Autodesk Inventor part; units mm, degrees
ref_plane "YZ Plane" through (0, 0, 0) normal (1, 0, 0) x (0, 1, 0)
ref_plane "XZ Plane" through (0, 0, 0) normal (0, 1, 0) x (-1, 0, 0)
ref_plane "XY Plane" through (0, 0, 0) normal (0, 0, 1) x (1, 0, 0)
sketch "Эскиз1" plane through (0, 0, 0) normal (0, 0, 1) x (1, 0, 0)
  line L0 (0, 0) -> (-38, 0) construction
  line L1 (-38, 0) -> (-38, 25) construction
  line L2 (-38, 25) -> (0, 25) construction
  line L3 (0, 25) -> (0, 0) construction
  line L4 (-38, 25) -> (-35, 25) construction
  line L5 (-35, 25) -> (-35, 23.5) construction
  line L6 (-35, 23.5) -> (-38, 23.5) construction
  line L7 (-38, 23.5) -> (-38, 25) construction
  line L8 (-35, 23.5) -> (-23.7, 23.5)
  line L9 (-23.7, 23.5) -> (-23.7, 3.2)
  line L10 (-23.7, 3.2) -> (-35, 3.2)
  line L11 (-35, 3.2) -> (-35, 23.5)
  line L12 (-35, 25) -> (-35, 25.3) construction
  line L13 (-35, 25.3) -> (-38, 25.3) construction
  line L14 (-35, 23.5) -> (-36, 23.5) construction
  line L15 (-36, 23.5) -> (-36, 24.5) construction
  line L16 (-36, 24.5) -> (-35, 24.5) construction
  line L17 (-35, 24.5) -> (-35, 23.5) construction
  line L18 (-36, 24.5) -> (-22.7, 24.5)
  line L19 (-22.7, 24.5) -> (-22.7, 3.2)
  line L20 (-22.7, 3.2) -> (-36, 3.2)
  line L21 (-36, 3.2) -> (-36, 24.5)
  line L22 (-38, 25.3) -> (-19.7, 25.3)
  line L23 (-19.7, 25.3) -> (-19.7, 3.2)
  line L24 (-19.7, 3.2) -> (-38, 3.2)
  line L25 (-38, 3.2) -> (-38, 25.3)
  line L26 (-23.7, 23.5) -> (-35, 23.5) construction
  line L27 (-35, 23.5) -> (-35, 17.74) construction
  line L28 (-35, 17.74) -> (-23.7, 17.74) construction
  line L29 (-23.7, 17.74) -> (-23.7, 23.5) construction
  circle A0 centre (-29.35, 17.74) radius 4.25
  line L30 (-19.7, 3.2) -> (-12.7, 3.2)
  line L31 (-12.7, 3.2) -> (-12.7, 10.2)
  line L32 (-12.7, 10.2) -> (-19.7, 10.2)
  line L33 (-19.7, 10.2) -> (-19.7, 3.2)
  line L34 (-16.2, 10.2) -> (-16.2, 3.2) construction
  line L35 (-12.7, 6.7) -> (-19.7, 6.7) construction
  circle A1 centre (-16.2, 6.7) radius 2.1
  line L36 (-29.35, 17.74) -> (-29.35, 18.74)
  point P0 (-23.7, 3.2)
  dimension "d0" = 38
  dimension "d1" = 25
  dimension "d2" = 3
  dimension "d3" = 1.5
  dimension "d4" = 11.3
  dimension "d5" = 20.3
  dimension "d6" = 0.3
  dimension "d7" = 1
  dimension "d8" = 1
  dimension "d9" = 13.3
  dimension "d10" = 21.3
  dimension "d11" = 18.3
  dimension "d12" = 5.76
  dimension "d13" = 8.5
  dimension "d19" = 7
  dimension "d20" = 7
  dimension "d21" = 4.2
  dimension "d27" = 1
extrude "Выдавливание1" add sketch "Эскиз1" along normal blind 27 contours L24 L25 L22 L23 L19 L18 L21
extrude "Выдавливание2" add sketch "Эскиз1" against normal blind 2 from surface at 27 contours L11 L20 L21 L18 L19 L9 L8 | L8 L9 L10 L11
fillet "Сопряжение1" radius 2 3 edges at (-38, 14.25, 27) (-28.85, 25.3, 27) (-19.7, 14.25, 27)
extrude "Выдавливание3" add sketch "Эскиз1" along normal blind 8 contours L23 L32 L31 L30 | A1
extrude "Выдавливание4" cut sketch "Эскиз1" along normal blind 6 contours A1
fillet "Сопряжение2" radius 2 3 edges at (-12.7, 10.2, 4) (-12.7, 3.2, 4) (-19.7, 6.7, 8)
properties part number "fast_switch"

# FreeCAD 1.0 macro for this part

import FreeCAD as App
import Part
import Sketcher


def edges_at(feature, points):
    """Names of the edges that pass closest to the given points."""
    edges = feature.Shape.Edges
    near = lambda p: min(range(len(edges)), key=lambda i: edges[i].distToShape(Part.Vertex(*p))[0])
    return sorted({f"Edge{near(p) + 1}" for p in points})

doc = App.newDocument("Part")
body = doc.addObject("PartDesign::Body", "Body")

sketch1 = doc.addObject("Sketcher::SketchObject", "Sketch")
body.addObject(sketch1)
sketch1.AttachmentSupport = (doc.XY_Plane, [""])
sketch1.MapMode = "FlatFace"
sketch1.addGeometry(Part.LineSegment(App.Vector(-38, 3.2, 0), App.Vector(-36, 3.2, 0)), False)
sketch1.addGeometry(Part.LineSegment(App.Vector(-36, 3.2, 0), App.Vector(-36, 24.5, 0)), False)
sketch1.addGeometry(Part.LineSegment(App.Vector(-36, 24.5, 0), App.Vector(-22.7, 24.5, 0)), False)
sketch1.addGeometry(Part.LineSegment(App.Vector(-22.7, 24.5, 0), App.Vector(-22.7, 3.2, 0)), False)
sketch1.addGeometry(Part.LineSegment(App.Vector(-22.7, 3.2, 0), App.Vector(-19.7, 3.2, 0)), False)
sketch1.addGeometry(Part.LineSegment(App.Vector(-19.7, 3.2, 0), App.Vector(-19.7, 25.3, 0)), False)
sketch1.addGeometry(Part.LineSegment(App.Vector(-19.7, 25.3, 0), App.Vector(-38, 25.3, 0)), False)
sketch1.addGeometry(Part.LineSegment(App.Vector(-38, 25.3, 0), App.Vector(-38, 3.2, 0)), False)
sketch1.addConstraint(Sketcher.Constraint("Coincident", 0, 2, 1, 1))
sketch1.addConstraint(Sketcher.Constraint("Coincident", 1, 2, 2, 1))
sketch1.addConstraint(Sketcher.Constraint("Coincident", 2, 2, 3, 1))
sketch1.addConstraint(Sketcher.Constraint("Coincident", 3, 2, 4, 1))
sketch1.addConstraint(Sketcher.Constraint("Coincident", 4, 2, 5, 1))
sketch1.addConstraint(Sketcher.Constraint("Coincident", 5, 2, 6, 1))
sketch1.addConstraint(Sketcher.Constraint("Coincident", 6, 2, 7, 1))
sketch1.addConstraint(Sketcher.Constraint("Coincident", 7, 2, 0, 1))
sketch1.addConstraint(Sketcher.Constraint("Horizontal", 0))
sketch1.addConstraint(Sketcher.Constraint("Vertical", 1))
sketch1.addConstraint(Sketcher.Constraint("Horizontal", 2))
sketch1.addConstraint(Sketcher.Constraint("Vertical", 3))
sketch1.addConstraint(Sketcher.Constraint("Horizontal", 4))
sketch1.addConstraint(Sketcher.Constraint("Vertical", 5))
sketch1.addConstraint(Sketcher.Constraint("Horizontal", 6))
sketch1.addConstraint(Sketcher.Constraint("Vertical", 7))
sketch1.addConstraint(Sketcher.Constraint("Horizontal", 0, 2, 3, 2))
sketch1.addConstraint(Sketcher.Constraint("DistanceX", 4, 1, 4, 2, 3.0))
sketch1.addConstraint(Sketcher.Constraint("DistanceX", 2, 1, 2, 2, 13.3))
sketch1.addConstraint(Sketcher.Constraint("DistanceX", 6, 2, 6, 1, 18.3))
sketch1.addConstraint(Sketcher.Constraint("DistanceY", 1, 1, 1, 2, 21.3))
sketch1.addConstraint(Sketcher.Constraint("DistanceX", 6, 2, -1, 1, 38.0))
sketch1.addConstraint(Sketcher.Constraint("DistanceY", 5, 1, 5, 2, 22.1))
sketch1.addConstraint(Sketcher.Constraint("DistanceY", -1, 1, 0, 2, 3.2))
pad1 = doc.addObject("PartDesign::Pad", "Pad")
body.addObject(pad1)
pad1.Profile = sketch1
pad1.Length = 27

sketch2 = doc.addObject("Sketcher::SketchObject", "Sketch001")
body.addObject(sketch2)
sketch2.AttachmentSupport = (doc.XY_Plane, [""])
sketch2.MapMode = "FlatFace"
sketch2.AttachmentOffset = App.Placement(App.Vector(0, 0, 27), App.Rotation())
sketch2.addGeometry(Part.LineSegment(App.Vector(-36, 3.2, 0), App.Vector(-22.7, 3.2, 0)), False)
sketch2.addGeometry(Part.LineSegment(App.Vector(-22.7, 3.2, 0), App.Vector(-22.7, 24.5, 0)), False)
sketch2.addGeometry(Part.LineSegment(App.Vector(-22.7, 24.5, 0), App.Vector(-36, 24.5, 0)), False)
sketch2.addGeometry(Part.LineSegment(App.Vector(-36, 24.5, 0), App.Vector(-36, 3.2, 0)), False)
sketch2.addGeometry(Part.Circle(App.Vector(-29.4, 17.7, 0), App.Vector(0, 0, 1), 4.2), False)
sketch2.addConstraint(Sketcher.Constraint("Coincident", 0, 2, 1, 1))
sketch2.addConstraint(Sketcher.Constraint("Coincident", 1, 2, 2, 1))
sketch2.addConstraint(Sketcher.Constraint("Coincident", 2, 2, 3, 1))
sketch2.addConstraint(Sketcher.Constraint("Coincident", 3, 2, 0, 1))
sketch2.addConstraint(Sketcher.Constraint("Horizontal", 0))
sketch2.addConstraint(Sketcher.Constraint("Vertical", 1))
sketch2.addConstraint(Sketcher.Constraint("Horizontal", 2))
sketch2.addConstraint(Sketcher.Constraint("Vertical", 3))
sketch2.addConstraint(Sketcher.Constraint("Diameter", 4, 8.5))
sketch2.addConstraint(Sketcher.Constraint("DistanceX", 0, 1, 0, 2, 13.3))
sketch2.addConstraint(Sketcher.Constraint("DistanceY", 1, 1, 1, 2, 21.3))
sketch2.addConstraint(Sketcher.Constraint("DistanceX", 2, 2, -1, 1, 36.0))
sketch2.addConstraint(Sketcher.Constraint("DistanceY", -1, 1, 0, 2, 3.2))
sketch2.addConstraint(Sketcher.Constraint("DistanceX", 4, 3, -1, 1, 29.35))
sketch2.addConstraint(Sketcher.Constraint("DistanceY", -1, 1, 4, 3, 17.74))
pad2 = doc.addObject("PartDesign::Pad", "Pad001")
body.addObject(pad2)
pad2.Profile = sketch2
pad2.Length = 2
pad2.Reversed = True
doc.recompute()

fillet = doc.addObject("PartDesign::Fillet", "Fillet")
body.addObject(fillet)
fillet.Base = (pad2, edges_at(pad2, [(-38, 14.25, 27), (-28.85, 25.3, 27), (-19.7, 14.25, 27)]))
fillet.Radius = 2

sketch3 = doc.addObject("Sketcher::SketchObject", "Sketch002")
body.addObject(sketch3)
sketch3.AttachmentSupport = (doc.XY_Plane, [""])
sketch3.MapMode = "FlatFace"
sketch3.addGeometry(Part.LineSegment(App.Vector(-20, 10, 0), App.Vector(-20, 3, 0)), False)
sketch3.addGeometry(Part.LineSegment(App.Vector(-20, 3, 0), App.Vector(-13, 3, 0)), False)
sketch3.addGeometry(Part.LineSegment(App.Vector(-13, 3, 0), App.Vector(-13, 10, 0)), False)
sketch3.addGeometry(Part.LineSegment(App.Vector(-13, 10, 0), App.Vector(-20, 10, 0)), False)
sketch3.addConstraint(Sketcher.Constraint("Coincident", 0, 2, 1, 1))
sketch3.addConstraint(Sketcher.Constraint("Coincident", 1, 2, 2, 1))
sketch3.addConstraint(Sketcher.Constraint("Coincident", 2, 2, 3, 1))
sketch3.addConstraint(Sketcher.Constraint("Coincident", 3, 2, 0, 1))
sketch3.addConstraint(Sketcher.Constraint("Vertical", 0))
sketch3.addConstraint(Sketcher.Constraint("Horizontal", 1))
sketch3.addConstraint(Sketcher.Constraint("Vertical", 2))
sketch3.addConstraint(Sketcher.Constraint("Horizontal", 3))
sketch3.addConstraint(Sketcher.Constraint("Equal", 3, 0))
sketch3.addConstraint(Sketcher.Constraint("DistanceX", 1, 1, 1, 2, 7.0))
sketch3.addConstraint(Sketcher.Constraint("DistanceX", 0, 2, -1, 1, 19.7))
sketch3.addConstraint(Sketcher.Constraint("DistanceY", -1, 1, 0, 2, 3.2))
pad3 = doc.addObject("PartDesign::Pad", "Pad002")
body.addObject(pad3)
pad3.Profile = sketch3
pad3.Length = 8

sketch4 = doc.addObject("Sketcher::SketchObject", "Sketch003")
body.addObject(sketch4)
sketch4.AttachmentSupport = (doc.XY_Plane, [""])
sketch4.MapMode = "FlatFace"
sketch4.addGeometry(Part.Circle(App.Vector(-16.2, 6.7, 0), App.Vector(0, 0, 1), 2.1), False)
sketch4.addConstraint(Sketcher.Constraint("Diameter", 0, 4.2))
sketch4.addConstraint(Sketcher.Constraint("DistanceX", 0, 3, -1, 1, 16.2))
sketch4.addConstraint(Sketcher.Constraint("DistanceY", -1, 1, 0, 3, 6.7))
pocket1 = doc.addObject("PartDesign::Pocket", "Pocket")
body.addObject(pocket1)
pocket1.Profile = sketch4
pocket1.Length = 6
pocket1.Reversed = True
doc.recompute()

fillet2 = doc.addObject("PartDesign::Fillet", "Fillet001")
body.addObject(fillet2)
fillet2.Base = (pocket1, edges_at(pocket1, [(-12.7, 10.2, 4), (-12.7, 3.2, 4), (-19.7, 6.7, 8)]))
fillet2.Radius = 2

doc.recompute()
